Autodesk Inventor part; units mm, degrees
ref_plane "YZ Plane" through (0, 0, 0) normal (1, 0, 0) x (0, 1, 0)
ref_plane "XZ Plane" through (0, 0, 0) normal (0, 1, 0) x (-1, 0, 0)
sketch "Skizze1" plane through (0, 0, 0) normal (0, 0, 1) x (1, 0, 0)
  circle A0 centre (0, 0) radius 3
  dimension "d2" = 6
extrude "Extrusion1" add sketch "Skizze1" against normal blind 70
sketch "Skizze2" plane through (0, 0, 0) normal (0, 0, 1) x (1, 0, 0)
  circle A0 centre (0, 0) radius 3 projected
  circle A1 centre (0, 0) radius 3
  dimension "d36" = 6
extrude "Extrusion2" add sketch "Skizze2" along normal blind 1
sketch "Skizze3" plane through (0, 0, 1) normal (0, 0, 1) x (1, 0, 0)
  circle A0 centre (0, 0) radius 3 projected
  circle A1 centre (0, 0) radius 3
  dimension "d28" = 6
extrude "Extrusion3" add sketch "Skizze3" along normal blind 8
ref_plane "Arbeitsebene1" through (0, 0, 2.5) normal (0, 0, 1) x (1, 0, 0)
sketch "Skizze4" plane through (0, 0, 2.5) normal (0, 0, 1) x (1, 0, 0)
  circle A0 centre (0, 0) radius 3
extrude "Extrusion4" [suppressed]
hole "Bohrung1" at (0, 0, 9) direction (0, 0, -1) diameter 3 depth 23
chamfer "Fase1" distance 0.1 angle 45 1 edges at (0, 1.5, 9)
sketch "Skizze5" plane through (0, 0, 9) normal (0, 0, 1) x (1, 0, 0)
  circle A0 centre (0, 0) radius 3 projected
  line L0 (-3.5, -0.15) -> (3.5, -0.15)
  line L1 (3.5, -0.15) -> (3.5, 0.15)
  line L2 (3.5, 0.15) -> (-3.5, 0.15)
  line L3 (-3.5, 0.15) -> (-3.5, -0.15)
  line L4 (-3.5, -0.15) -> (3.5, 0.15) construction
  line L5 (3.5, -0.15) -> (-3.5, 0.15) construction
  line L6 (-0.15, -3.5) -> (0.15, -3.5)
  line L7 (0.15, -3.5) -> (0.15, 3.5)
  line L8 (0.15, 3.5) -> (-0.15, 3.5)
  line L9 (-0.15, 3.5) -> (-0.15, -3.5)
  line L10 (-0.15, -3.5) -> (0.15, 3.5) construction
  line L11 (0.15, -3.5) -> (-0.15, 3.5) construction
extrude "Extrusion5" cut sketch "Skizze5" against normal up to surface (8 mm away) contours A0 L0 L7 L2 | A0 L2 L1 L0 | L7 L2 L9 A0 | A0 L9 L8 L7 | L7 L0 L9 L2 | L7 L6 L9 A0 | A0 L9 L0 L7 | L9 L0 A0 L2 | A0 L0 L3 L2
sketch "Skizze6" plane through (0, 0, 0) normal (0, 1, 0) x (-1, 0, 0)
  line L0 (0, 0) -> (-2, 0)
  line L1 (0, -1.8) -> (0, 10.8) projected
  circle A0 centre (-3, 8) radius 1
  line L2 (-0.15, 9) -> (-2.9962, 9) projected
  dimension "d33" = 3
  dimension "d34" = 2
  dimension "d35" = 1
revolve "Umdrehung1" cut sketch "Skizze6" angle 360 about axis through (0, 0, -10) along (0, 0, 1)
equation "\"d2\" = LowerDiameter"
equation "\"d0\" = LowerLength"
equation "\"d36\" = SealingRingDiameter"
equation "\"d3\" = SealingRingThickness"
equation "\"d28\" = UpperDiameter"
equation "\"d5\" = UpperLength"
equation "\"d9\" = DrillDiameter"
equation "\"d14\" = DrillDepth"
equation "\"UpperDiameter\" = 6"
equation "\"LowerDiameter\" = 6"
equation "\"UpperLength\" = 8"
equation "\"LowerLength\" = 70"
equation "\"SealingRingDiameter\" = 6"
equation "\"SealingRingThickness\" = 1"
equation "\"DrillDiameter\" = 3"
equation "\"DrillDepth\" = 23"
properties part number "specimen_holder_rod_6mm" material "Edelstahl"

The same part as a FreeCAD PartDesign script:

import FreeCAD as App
import Part
import Sketcher
from FreeCAD import Vector
Q = App.Units.Quantity


def edges_at(feature, points):
    """Names of the edges that pass closest to the given points."""
    edges = feature.Shape.Edges
    near = lambda p: min(range(len(edges)), key=lambda i: edges[i].distToShape(Part.Vertex(*p))[0])
    return sorted({f"Edge{near(p) + 1}" for p in points})


def add_polygon(sketch, points):
    """Adds a closed chain of lines whose ends are joined by coincident constraints."""
    first, n = sketch.GeometryCount, len(points)
    for a, b in zip(points, points[1:] + points[:1]):
        sketch.addGeometry(Part.LineSegment(App.Vector(*a, 0), App.Vector(*b, 0)), False)
    for i in range(n):
        sketch.addConstraint(Sketcher.Constraint("Coincident", first + i, 2, first + (i + 1) % n, 1))

doc = App.newDocument("Part")
body = doc.addObject("PartDesign::Body", "Body")

# Sketch on XY plane
sketch1 = body.newObject("Sketcher::SketchObject", "Sketch")
sketch1.AttachmentSupport = (doc.getObject("XY_Plane"), [""])
sketch1.MapMode = "FlatFace"
sketch1.addGeometry(Part.Circle(Vector(0, 0, 0), Vector(0, 0, 1), 3), False)
sketch1.addConstraint([
    Sketcher.Constraint("Coincident", 0, 3, -1, 1),
    Sketcher.Constraint("Diameter", 0, Q("6 mm")),
])
pad1 = body.newObject("PartDesign::Pad", "Pad")
pad1.Profile = sketch1
pad1.Length = 70
pad1.Reversed = True

# Sketch on XY plane
sketch2 = body.newObject("Sketcher::SketchObject", "Sketch001")
sketch2.AttachmentSupport = (doc.getObject("XY_Plane"), [""])
sketch2.MapMode = "FlatFace"
sketch2.addGeometry(Part.Circle(Vector(0, 0, 0), Vector(0, 0, 1), 3), False)
sketch2.addConstraint([
    Sketcher.Constraint("Coincident", 0, 3, -1, 1),
    Sketcher.Constraint("Diameter", 0, Q("6 mm")),
])
pad2 = body.newObject("PartDesign::Pad", "Pad001")
pad2.Profile = sketch2
pad2.Length = 1

# Sketch on XY plane
sketch3 = body.newObject("Sketcher::SketchObject", "Sketch002")
sketch3.AttachmentSupport = (doc.getObject("XY_Plane"), [""])
sketch3.MapMode = "FlatFace"
sketch3.AttachmentOffset = App.Placement(Vector(0, 0, 1), App.Rotation())
sketch3.addGeometry(Part.Circle(Vector(0, 0, 0), Vector(0, 0, 1), 3), False)
sketch3.addConstraint([
    Sketcher.Constraint("Coincident", 0, 3, -1, 1),
    Sketcher.Constraint("Diameter", 0, Q("6 mm")),
])
pad3 = body.newObject("PartDesign::Pad", "Pad002")
pad3.Profile = sketch3
pad3.Length = 8

# Sketch on XY plane
sketch4 = body.newObject("Sketcher::SketchObject", "Sketch003")
sketch4.AttachmentSupport = (doc.getObject("XY_Plane"), [""])
sketch4.MapMode = "FlatFace"
sketch4.AttachmentOffset = App.Placement(Vector(0, 0, 9), App.Rotation())
sketch4.addGeometry(Part.Circle(Vector(0, 0, 0), Vector(0, 0, 1), 1.5), False)
sketch4.addConstraint([
    Sketcher.Constraint("Coincident", 0, 3, -1, 1),
    Sketcher.Constraint("Diameter", 0, Q("3 mm")),
])
doc.recompute()
hole = body.newObject("PartDesign::Hole", "Hole")
hole.Profile = sketch4
hole.ThreadType = "None"
hole.Diameter = 3
hole.DepthType = "Dimension"
hole.Depth = 23
hole.DrillPoint = "Flat"
doc.recompute()

chamfer = body.newObject("PartDesign::Chamfer", "Chamfer")
chamfer.Base = (hole, edges_at(hole, [(0, 1.5, 9)]))
chamfer.Size = 0.1

# Sketch on XY plane
sketch5 = body.newObject("Sketcher::SketchObject", "Sketch004")
sketch5.AttachmentSupport = (doc.getObject("XY_Plane"), [""])
sketch5.MapMode = "FlatFace"
sketch5.AttachmentOffset = App.Placement(Vector(0, 0, 9), App.Rotation())
add_polygon(sketch5, [(0.15, -0.15), (3.5, -0.15), (3.5, 0.15), (0.15, 0.15), (0.15, 3.5), (-0.15, 3.5), (-0.15, 0.15), (-3.5, 0.15), (-3.5, -0.15), (-0.15, -0.15), (-0.15, -3.5), (0.15, -3.5)])  # lines 0-11
sketch5.addConstraint([
    Sketcher.Constraint("Horizontal", 0),
    Sketcher.Constraint("Vertical", 1),
    Sketcher.Constraint("Horizontal", 2),
    Sketcher.Constraint("Vertical", 3),
    Sketcher.Constraint("Horizontal", 4),
    Sketcher.Constraint("Vertical", 5),
    Sketcher.Constraint("Horizontal", 6),
    Sketcher.Constraint("Vertical", 7),
    Sketcher.Constraint("Horizontal", 8),
    Sketcher.Constraint("Vertical", 9),
    Sketcher.Constraint("Horizontal", 10),
    Sketcher.Constraint("Vertical", 11),
    Sketcher.Constraint("Symmetric", 0, 2, 6, 2, -1, 1),
    Sketcher.Constraint("Symmetric", 2, 2, 8, 2, -1, 1),
    Sketcher.Constraint("Symmetric", 4, 2, 10, 2, -1, 1),
    Sketcher.Constraint("Symmetric", 2, 2, 5, 2, -2),
    Sketcher.Constraint("Equal", 10, 1),
    Sketcher.Constraint("Equal", 8, 3),
    Sketcher.Constraint("DistanceX", 4, 2, 4, 1, Q("0.3 mm")),
    Sketcher.Constraint("DistanceX", 6, 2, 1, 2, Q("7 mm")),
])
pocket1 = body.newObject("PartDesign::Pocket", "Pocket")
pocket1.Profile = sketch5
pocket1.Length = 8

# Sketch on XZ plane
sketch6 = body.newObject("Sketcher::SketchObject", "Sketch005")
sketch6.AttachmentSupport = (doc.getObject("XZ_Plane"), [""])
sketch6.MapMode = "FlatFace"
sketch6.addGeometry(Part.Circle(Vector(3, 8, 0), Vector(0, 0, 1), 1), False)
sketch6.addConstraint([
    Sketcher.Constraint("Diameter", 0, Q("2 mm")),
    Sketcher.Constraint("DistanceX", -1, 1, 0, 3, Q("3 mm")),
    Sketcher.Constraint("DistanceY", -1, 1, 0, 3, Q("8 mm")),
])
groove = body.newObject("PartDesign::Groove", "Groove")
groove.Profile = sketch6
groove.ReferenceAxis = (sketch6, ["V_Axis"])
groove.Angle = 360

doc.recompute()
